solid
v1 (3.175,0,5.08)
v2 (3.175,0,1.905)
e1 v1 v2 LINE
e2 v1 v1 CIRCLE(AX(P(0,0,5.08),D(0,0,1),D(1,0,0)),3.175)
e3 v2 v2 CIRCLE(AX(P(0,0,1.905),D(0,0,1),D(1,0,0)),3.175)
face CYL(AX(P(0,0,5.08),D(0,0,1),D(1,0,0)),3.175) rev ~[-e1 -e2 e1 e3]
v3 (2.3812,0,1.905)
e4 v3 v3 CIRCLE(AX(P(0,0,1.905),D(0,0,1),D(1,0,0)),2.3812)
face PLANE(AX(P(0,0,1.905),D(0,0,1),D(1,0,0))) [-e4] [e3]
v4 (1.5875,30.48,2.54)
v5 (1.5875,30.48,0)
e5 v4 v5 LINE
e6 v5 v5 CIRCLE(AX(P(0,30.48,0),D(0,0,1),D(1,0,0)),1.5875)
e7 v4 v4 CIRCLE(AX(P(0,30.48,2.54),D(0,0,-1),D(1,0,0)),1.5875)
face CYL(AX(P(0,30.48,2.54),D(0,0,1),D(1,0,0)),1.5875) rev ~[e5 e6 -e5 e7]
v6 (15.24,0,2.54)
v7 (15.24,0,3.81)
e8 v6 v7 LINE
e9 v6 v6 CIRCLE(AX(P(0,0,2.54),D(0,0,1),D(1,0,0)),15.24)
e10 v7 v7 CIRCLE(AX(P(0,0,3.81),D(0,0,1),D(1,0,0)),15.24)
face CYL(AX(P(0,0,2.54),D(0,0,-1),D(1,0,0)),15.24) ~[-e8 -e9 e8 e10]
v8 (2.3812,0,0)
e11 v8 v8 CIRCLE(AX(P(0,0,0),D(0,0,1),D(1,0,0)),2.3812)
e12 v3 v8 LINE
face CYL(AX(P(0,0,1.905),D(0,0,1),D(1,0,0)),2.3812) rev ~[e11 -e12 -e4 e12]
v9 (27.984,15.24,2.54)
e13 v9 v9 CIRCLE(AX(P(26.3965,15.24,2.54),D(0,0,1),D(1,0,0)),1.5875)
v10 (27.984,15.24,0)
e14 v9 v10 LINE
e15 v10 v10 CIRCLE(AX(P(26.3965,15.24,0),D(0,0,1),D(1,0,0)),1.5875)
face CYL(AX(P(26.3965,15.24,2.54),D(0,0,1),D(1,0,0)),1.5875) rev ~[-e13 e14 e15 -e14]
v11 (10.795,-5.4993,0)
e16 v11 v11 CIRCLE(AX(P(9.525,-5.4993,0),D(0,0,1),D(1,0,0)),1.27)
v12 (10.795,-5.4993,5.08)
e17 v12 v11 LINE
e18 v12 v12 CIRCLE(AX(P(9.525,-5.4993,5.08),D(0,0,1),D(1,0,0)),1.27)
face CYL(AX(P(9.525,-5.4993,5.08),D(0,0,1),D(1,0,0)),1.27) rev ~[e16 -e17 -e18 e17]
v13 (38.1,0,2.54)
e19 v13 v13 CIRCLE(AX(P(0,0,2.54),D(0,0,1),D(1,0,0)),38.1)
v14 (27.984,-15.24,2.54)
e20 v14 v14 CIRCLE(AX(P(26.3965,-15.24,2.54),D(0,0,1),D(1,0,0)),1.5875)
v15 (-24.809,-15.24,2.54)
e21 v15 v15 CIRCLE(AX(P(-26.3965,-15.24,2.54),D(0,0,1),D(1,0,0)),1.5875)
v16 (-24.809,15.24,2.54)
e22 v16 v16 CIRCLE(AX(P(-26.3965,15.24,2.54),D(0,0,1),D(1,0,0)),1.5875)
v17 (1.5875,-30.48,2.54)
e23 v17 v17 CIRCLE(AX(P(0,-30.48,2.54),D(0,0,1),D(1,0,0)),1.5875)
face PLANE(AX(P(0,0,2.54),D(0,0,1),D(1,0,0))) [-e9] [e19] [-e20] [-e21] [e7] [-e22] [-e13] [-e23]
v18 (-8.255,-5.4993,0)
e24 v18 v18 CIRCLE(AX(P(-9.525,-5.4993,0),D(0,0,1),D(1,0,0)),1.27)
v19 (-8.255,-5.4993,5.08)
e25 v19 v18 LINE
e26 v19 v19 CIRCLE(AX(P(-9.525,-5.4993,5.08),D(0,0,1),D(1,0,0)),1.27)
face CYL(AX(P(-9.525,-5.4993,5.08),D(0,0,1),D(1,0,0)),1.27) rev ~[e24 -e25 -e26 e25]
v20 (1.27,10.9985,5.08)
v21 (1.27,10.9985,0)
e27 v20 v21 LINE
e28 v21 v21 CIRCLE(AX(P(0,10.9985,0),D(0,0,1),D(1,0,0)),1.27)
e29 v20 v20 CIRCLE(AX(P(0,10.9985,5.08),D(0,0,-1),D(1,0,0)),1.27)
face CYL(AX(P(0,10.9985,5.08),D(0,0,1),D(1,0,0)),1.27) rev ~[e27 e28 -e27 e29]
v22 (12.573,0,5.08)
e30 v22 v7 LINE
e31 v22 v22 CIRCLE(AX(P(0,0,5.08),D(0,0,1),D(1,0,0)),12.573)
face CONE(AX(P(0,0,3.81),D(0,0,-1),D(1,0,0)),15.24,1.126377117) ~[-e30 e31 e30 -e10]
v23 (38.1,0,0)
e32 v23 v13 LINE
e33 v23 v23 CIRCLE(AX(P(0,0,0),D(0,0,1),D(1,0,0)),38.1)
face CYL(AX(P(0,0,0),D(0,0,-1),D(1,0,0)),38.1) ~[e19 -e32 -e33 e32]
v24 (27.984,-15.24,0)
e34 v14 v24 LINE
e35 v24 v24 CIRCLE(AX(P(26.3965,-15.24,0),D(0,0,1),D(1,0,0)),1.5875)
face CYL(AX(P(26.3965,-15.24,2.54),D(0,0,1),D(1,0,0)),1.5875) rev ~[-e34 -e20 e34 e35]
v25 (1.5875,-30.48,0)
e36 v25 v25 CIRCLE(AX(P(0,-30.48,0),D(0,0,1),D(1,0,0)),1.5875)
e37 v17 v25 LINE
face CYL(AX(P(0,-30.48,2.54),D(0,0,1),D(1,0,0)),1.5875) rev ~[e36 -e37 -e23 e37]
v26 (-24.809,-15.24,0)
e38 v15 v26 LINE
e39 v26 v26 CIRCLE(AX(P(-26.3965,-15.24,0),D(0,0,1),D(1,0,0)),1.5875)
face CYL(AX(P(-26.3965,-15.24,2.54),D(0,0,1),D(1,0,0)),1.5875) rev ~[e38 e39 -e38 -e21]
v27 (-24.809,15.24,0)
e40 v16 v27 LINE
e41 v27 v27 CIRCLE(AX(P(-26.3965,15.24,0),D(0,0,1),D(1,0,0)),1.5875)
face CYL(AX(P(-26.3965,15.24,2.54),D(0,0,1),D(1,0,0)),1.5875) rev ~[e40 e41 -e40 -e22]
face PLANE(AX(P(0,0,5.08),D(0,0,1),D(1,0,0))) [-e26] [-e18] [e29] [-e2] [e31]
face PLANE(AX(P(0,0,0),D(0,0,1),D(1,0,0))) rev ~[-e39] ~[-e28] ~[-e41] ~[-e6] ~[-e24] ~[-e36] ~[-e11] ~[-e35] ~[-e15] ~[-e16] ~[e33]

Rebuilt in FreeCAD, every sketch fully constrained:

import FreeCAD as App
import Part
import Sketcher
Q = App.Units.Quantity


def edges_at(feature, points):
    """Names of the edges that pass closest to the given points."""
    edges = feature.Shape.Edges
    near = lambda p: min(range(len(edges)), key=lambda i: edges[i].distToShape(Part.Vertex(*p))[0])
    return sorted({f"Edge{near(p) + 1}" for p in points})

doc = App.newDocument("Part")
body = doc.addObject("PartDesign::Body", "Body")

# Sketch on XY plane
sketch1 = body.newObject("Sketcher::SketchObject", "Sketch")
sketch1.AttachmentSupport = (doc.getObject("XY_Plane"), [""])
sketch1.MapMode = "FlatFace"
sketch1.addGeometry(Part.Circle(App.Vector(0, 0, 0), App.Vector(0, 0, 1), 38), False)
sketch1.addConstraint([
    Sketcher.Constraint("Coincident", 0, 3, -1, 1),
    Sketcher.Constraint("Diameter", 0, Q("3 in")),
])
pad1 = body.newObject("PartDesign::Pad", "Pad")
pad1.Profile = sketch1
pad1.Length = Q("0.1 in")

# Sketch on XY plane
sketch2 = body.newObject("Sketcher::SketchObject", "Sketch001")
sketch2.AttachmentSupport = (doc.getObject("XY_Plane"), [""])
sketch2.MapMode = "FlatFace"
sketch2.AttachmentOffset = App.Placement(App.Vector(0, 0, 0.1 * 25.4), App.Rotation())
sketch2.addGeometry(Part.Circle(App.Vector(0, 0, 0), App.Vector(0, 0, 1), 15), False)
sketch2.addConstraint([
    Sketcher.Constraint("Coincident", 0, 3, -1, 1),
    Sketcher.Constraint("Diameter", 0, Q("1.2 in")),
])
pad2 = body.newObject("PartDesign::Pad", "Pad001")
pad2.Profile = sketch2
pad2.Length = Q("0.1 in")

# Sketch on XY plane
sketch3 = body.newObject("Sketcher::SketchObject", "Sketch002")
sketch3.AttachmentSupport = (doc.getObject("XY_Plane"), [""])
sketch3.MapMode = "FlatFace"
sketch3.AttachmentOffset = App.Placement(App.Vector(0, 0, 0.2 * 25.4), App.Rotation())
sketch3.addGeometry([
    Part.Circle(App.Vector(0, 11, 0), App.Vector(0, 0, 1), 1.3),
    Part.Circle(App.Vector(-9.5, -5.5, 0), App.Vector(0, 0, 1), 1.3),
    Part.Circle(App.Vector(9.5, -5.5, 0), App.Vector(0, 0, 1), 1.3),
], False)
sketch3.addConstraint([
    Sketcher.Constraint("Equal", 0, 1),
    Sketcher.Constraint("Equal", 1, 2),
    Sketcher.Constraint("Symmetric", 1, 3, 2, 3, -2),
    Sketcher.Constraint("PointOnObject", 0, 3, -2),
    Sketcher.Constraint("Diameter", 0, Q("0.1 in")),
    Sketcher.Constraint("DistanceX", 1, 3, 2, 3, Q("0.75 in")),
    Sketcher.Constraint("DistanceY", -1, 1, 0, 3, Q("0.433 in")),
    Sketcher.Constraint("DistanceY", 1, 3, -1, 1, Q("0.2165 in")),
])
pocket1 = body.newObject("PartDesign::Pocket", "Pocket")
pocket1.Profile = sketch3
pocket1.Type = "ThroughAll"

# Sketch on XY plane
sketch4 = body.newObject("Sketcher::SketchObject", "Sketch003")
sketch4.AttachmentSupport = (doc.getObject("XY_Plane"), [""])
sketch4.MapMode = "FlatFace"
sketch4.AttachmentOffset = App.Placement(App.Vector(0, 0, 0.2 * 25.4), App.Rotation())
sketch4.addGeometry(Part.Circle(App.Vector(0, 0, 0), App.Vector(0, 0, 1), 3.2), False)
sketch4.addConstraint([
    Sketcher.Constraint("Coincident", 0, 3, -1, 1),
    Sketcher.Constraint("Diameter", 0, Q("0.25 in")),
])
pocket2 = body.newObject("PartDesign::Pocket", "Pocket001")
pocket2.Profile = sketch4
pocket2.Length = Q("0.125 in")

# Sketch on XY plane
sketch5 = body.newObject("Sketcher::SketchObject", "Sketch004")
sketch5.AttachmentSupport = (doc.getObject("XY_Plane"), [""])
sketch5.MapMode = "FlatFace"
sketch5.AttachmentOffset = App.Placement(App.Vector(0, 0, 0.075 * 25.4), App.Rotation())
sketch5.addGeometry(Part.Circle(App.Vector(0, 0, 0), App.Vector(0, 0, 1), 2.4), False)
sketch5.addConstraint([
    Sketcher.Constraint("Coincident", 0, 3, -1, 1),
    Sketcher.Constraint("Diameter", 0, Q("0.1875 in")),
])
pocket3 = body.newObject("PartDesign::Pocket", "Pocket002")
pocket3.Profile = sketch5
pocket3.Type = "ThroughAll"

# Sketch on XY plane
sketch6 = body.newObject("Sketcher::SketchObject", "Sketch005")
sketch6.AttachmentSupport = (doc.getObject("XY_Plane"), [""])
sketch6.MapMode = "FlatFace"
sketch6.AttachmentOffset = App.Placement(App.Vector(0, 0, 0.1 * 25.4), App.Rotation())
sketch6.addGeometry([
    Part.Circle(App.Vector(0, 30.5, 0), App.Vector(0, 0, 1), 1.6),  # 0
    Part.Circle(App.Vector(-26.4, 15.2, 0), App.Vector(0, 0, 1), 1.6),  # 1
    Part.Circle(App.Vector(-26.4, -15.2, 0), App.Vector(0, 0, 1), 1.6),  # 2
    Part.Circle(App.Vector(0, -30.5, 0), App.Vector(0, 0, 1), 1.6),  # 3
    Part.Circle(App.Vector(26.4, -15.2, 0), App.Vector(0, 0, 1), 1.6),  # 4
    Part.Circle(App.Vector(26.4, 15.2, 0), App.Vector(0, 0, 1), 1.6),  # 5
], False)
sketch6.addConstraint([
    Sketcher.Constraint("Equal", 0, 1),
    Sketcher.Constraint("Equal", 1, 2),
    Sketcher.Constraint("Equal", 2, 3),
    Sketcher.Constraint("Equal", 3, 4),
    Sketcher.Constraint("Equal", 4, 5),
    Sketcher.Constraint("Symmetric", 0, 3, 3, 3, -1, 1),
    Sketcher.Constraint("Symmetric", 1, 3, 4, 3, -1, 1),
    Sketcher.Constraint("Symmetric", 2, 3, 5, 3, -1, 1),
    Sketcher.Constraint("Symmetric", 2, 3, 4, 3, -2),
    Sketcher.Constraint("PointOnObject", 0, 3, -2),
    Sketcher.Constraint("Diameter", 0, Q("0.125 in")),
    Sketcher.Constraint("DistanceY", -1, 1, 0, 3, Q("1.2 in")),
    Sketcher.Constraint("DistanceY", 2, 3, 1, 3, Q("1.2 in")),
    Sketcher.Constraint("DistanceX", 1, 3, -1, 1, 26.3965),
])
pocket4 = body.newObject("PartDesign::Pocket", "Pocket003")
pocket4.Profile = sketch6
pocket4.Length = Q("1 in")
doc.recompute()

chamfer = body.newObject("PartDesign::Chamfer", "Chamfer")
chamfer.Base = (pocket4, edges_at(pocket4, [(-15.24, 0, 5.08)]))
chamfer.ChamferType = "Two distances"
chamfer.Size = Q("0.105 in")
chamfer.Size2 = Q("0.05 in")
chamfer.FlipDirection = True

doc.recompute()
